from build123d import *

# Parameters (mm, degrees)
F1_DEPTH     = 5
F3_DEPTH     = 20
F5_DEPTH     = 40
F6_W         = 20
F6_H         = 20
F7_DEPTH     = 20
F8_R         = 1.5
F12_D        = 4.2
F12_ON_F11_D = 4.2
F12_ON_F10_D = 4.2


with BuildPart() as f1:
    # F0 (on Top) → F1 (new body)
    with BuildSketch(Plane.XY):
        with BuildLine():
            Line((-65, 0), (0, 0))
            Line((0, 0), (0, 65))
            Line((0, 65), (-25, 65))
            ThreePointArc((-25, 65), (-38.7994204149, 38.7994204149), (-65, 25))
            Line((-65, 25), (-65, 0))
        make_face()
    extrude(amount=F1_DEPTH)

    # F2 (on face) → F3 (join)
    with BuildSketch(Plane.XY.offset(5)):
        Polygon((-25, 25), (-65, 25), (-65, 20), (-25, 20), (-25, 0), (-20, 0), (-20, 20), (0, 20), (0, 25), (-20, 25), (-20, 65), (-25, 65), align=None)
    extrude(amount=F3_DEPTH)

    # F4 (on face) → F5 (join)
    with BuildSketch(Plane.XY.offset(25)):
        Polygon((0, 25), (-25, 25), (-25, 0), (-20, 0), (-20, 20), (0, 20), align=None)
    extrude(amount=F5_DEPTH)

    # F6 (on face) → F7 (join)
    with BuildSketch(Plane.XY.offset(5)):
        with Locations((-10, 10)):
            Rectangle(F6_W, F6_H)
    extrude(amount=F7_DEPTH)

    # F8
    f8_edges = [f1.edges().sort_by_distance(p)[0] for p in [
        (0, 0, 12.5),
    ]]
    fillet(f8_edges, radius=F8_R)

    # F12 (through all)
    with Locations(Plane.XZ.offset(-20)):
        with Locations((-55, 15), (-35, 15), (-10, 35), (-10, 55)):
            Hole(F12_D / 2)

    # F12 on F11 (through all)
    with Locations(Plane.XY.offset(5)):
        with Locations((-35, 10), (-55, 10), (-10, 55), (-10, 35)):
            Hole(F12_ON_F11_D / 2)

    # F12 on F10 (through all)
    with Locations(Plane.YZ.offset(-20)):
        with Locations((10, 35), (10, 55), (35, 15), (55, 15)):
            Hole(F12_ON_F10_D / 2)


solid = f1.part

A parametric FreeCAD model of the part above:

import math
import FreeCAD as App
import Part
import Sketcher
from FreeCAD import Vector


def edges_at(feature, points):
    """Names of the edges that pass closest to the given points."""
    edges = feature.Shape.Edges
    near = lambda p: min(range(len(edges)), key=lambda i: edges[i].distToShape(Part.Vertex(*p))[0])
    return sorted({f"Edge{near(p) + 1}" for p in points})

doc = App.newDocument("Part")
params = doc.addObject("Spreadsheet::Sheet", "Params")
for row, (alias, value) in enumerate([
    ("sketch1_radius", "50 mm"),
    ("sketch1_width", "65 mm"),
    ("sketch1_width2", "25 mm"),
    ("pad1_length", "5 mm"),
    ("sketch2_width", "40 mm"),
    ("sketch2_width2", "5 mm"),
    ("sketch2_width3", "20 mm"),
    ("pad2_length", "20 mm"),
    ("sketch3_width", "25 mm"),
    ("sketch3_width2", "5 mm"),
    ("pad3_length", "40 mm"),
    ("sketch4_width", "20 mm"),
    ("pad4_length", "20 mm"),
    ("fillet_radius", "1.5 mm"),
    ("sketch5_diameter", "4.2 mm"),
    ("hole_diameter", "4.2 mm"),
    ("sketch6_diameter", "4.2 mm"),
    ("hole2_diameter", "4.2 mm"),
    ("sketch7_diameter", "4.2 mm"),
    ("hole3_diameter", "4.2 mm"),
], start=1):
    params.set(f"A{row}", alias)
    params.set(f"B{row}", "=" + value)
    params.setAlias(f"B{row}", alias)

body = doc.addObject("PartDesign::Body", "Body")

# Sketch on XY plane
sketch1 = body.newObject("Sketcher::SketchObject", "Sketch")
sketch1.AttachmentSupport = (doc.getObject("XY_Plane"), [""])
sketch1.MapMode = "FlatFace"
sketch1.addGeometry(Part.LineSegment(Vector(-65, 0, 0), Vector(0, 0, 0)), False)
sketch1.addGeometry(Part.LineSegment(Vector(0, 0, 0), Vector(0, 65, 0)), False)
sketch1.addGeometry(Part.LineSegment(Vector(0, 65, 0), Vector(-25, 65, 0)), False)
sketch1.addGeometry(Part.ArcOfCircle(Part.Circle(Vector(-74, 74, 0), Vector(0, 0, 1), 50), math.radians(-79), math.radians(-11)), False)
sketch1.addGeometry(Part.LineSegment(Vector(-65, 25, 0), Vector(-65, 0, 0)), False)
sketch1.addConstraint(Sketcher.Constraint("Coincident", 0, 2, 1, 1))
sketch1.addConstraint(Sketcher.Constraint("Coincident", 1, 2, 2, 1))
sketch1.addConstraint(Sketcher.Constraint("Coincident", 2, 2, 3, 2))
sketch1.addConstraint(Sketcher.Constraint("Coincident", 3, 1, 4, 1))
sketch1.addConstraint(Sketcher.Constraint("Coincident", 4, 2, 0, 1))
sketch1.addConstraint(Sketcher.Constraint("Horizontal", 0))
sketch1.addConstraint(Sketcher.Constraint("Vertical", 1))
sketch1.addConstraint(Sketcher.Constraint("Horizontal", 2))
sketch1.addConstraint(Sketcher.Constraint("Vertical", 4))
sketch1.addConstraint(Sketcher.Constraint("Coincident", 0, 2, -1, 1))
sketch1.addConstraint(Sketcher.Constraint("Equal", 0, 1))
sketch1.addConstraint(Sketcher.Constraint("Equal", 2, 4))
sketch1.addConstraint(Sketcher.Constraint("Radius", 3, 50.0))
sketch1.addConstraint(Sketcher.Constraint("DistanceX", 0, 1, 0, 2, 65.0))
sketch1.addConstraint(Sketcher.Constraint("DistanceX", 2, 2, 2, 1, 25.0))
sketch1.setExpression("Constraints[12]", "Params.sketch1_radius")
sketch1.setExpression("Constraints[13]", "Params.sketch1_width")
sketch1.setExpression("Constraints[14]", "Params.sketch1_width2")
pad1 = body.newObject("PartDesign::Pad", "Pad")
pad1.Profile = sketch1
pad1.setExpression("Length", "Params.pad1_length")

# Sketch on XY plane
sketch2 = body.newObject("Sketcher::SketchObject", "Sketch001")
sketch2.AttachmentSupport = (doc.getObject("XY_Plane"), [""])
sketch2.MapMode = "FlatFace"
sketch2.AttachmentOffset = App.Placement(Vector(0, 0, 5), App.Rotation())
sketch2.addGeometry(Part.LineSegment(Vector(-25, 25, 0), Vector(-65, 25, 0)), False)
sketch2.addGeometry(Part.LineSegment(Vector(-65, 25, 0), Vector(-65, 20, 0)), False)
sketch2.addGeometry(Part.LineSegment(Vector(-65, 20, 0), Vector(-25, 20, 0)), False)
sketch2.addGeometry(Part.LineSegment(Vector(-25, 20, 0), Vector(-25, 0, 0)), False)
sketch2.addGeometry(Part.LineSegment(Vector(-25, 0, 0), Vector(-20, 0, 0)), False)
sketch2.addGeometry(Part.LineSegment(Vector(-20, 0, 0), Vector(-20, 20, 0)), False)
sketch2.addGeometry(Part.LineSegment(Vector(-20, 20, 0), Vector(0, 20, 0)), False)
sketch2.addGeometry(Part.LineSegment(Vector(0, 20, 0), Vector(0, 25, 0)), False)
sketch2.addGeometry(Part.LineSegment(Vector(0, 25, 0), Vector(-20, 25, 0)), False)
sketch2.addGeometry(Part.LineSegment(Vector(-20, 25, 0), Vector(-20, 65, 0)), False)
sketch2.addGeometry(Part.LineSegment(Vector(-20, 65, 0), Vector(-25, 65, 0)), False)
sketch2.addGeometry(Part.LineSegment(Vector(-25, 65, 0), Vector(-25, 25, 0)), False)
sketch2.addConstraint(Sketcher.Constraint("Coincident", 0, 2, 1, 1))
sketch2.addConstraint(Sketcher.Constraint("Coincident", 1, 2, 2, 1))
sketch2.addConstraint(Sketcher.Constraint("Coincident", 2, 2, 3, 1))
sketch2.addConstraint(Sketcher.Constraint("Coincident", 3, 2, 4, 1))
sketch2.addConstraint(Sketcher.Constraint("Coincident", 4, 2, 5, 1))
sketch2.addConstraint(Sketcher.Constraint("Coincident", 5, 2, 6, 1))
sketch2.addConstraint(Sketcher.Constraint("Coincident", 6, 2, 7, 1))
sketch2.addConstraint(Sketcher.Constraint("Coincident", 7, 2, 8, 1))
sketch2.addConstraint(Sketcher.Constraint("Coincident", 8, 2, 9, 1))
sketch2.addConstraint(Sketcher.Constraint("Coincident", 9, 2, 10, 1))
sketch2.addConstraint(Sketcher.Constraint("Coincident", 10, 2, 11, 1))
sketch2.addConstraint(Sketcher.Constraint("Coincident", 11, 2, 0, 1))
sketch2.addConstraint(Sketcher.Constraint("Horizontal", 0))
sketch2.addConstraint(Sketcher.Constraint("Vertical", 1))
sketch2.addConstraint(Sketcher.Constraint("Horizontal", 2))
sketch2.addConstraint(Sketcher.Constraint("Vertical", 3))
sketch2.addConstraint(Sketcher.Constraint("Horizontal", 4))
sketch2.addConstraint(Sketcher.Constraint("Vertical", 5))
sketch2.addConstraint(Sketcher.Constraint("Horizontal", 6))
sketch2.addConstraint(Sketcher.Constraint("Vertical", 7))
sketch2.addConstraint(Sketcher.Constraint("Horizontal", 8))
sketch2.addConstraint(Sketcher.Constraint("Vertical", 9))
sketch2.addConstraint(Sketcher.Constraint("Horizontal", 10))
sketch2.addConstraint(Sketcher.Constraint("Vertical", 11))
sketch2.addConstraint(Sketcher.Constraint("PointOnObject", 3, 2, -1))
sketch2.addConstraint(Sketcher.Constraint("PointOnObject", 6, 2, -2))
sketch2.addConstraint(Sketcher.Constraint("Horizontal", 2, 2, 5, 2))
sketch2.addConstraint(Sketcher.Constraint("Horizontal", 0, 2, 7, 2))
sketch2.addConstraint(Sketcher.Constraint("Vertical", 5, 2, 8, 2))
sketch2.addConstraint(Sketcher.Constraint("Vertical", 3, 2, 10, 2))
sketch2.addConstraint(Sketcher.Constraint("Equal", 10, 1))
sketch2.addConstraint(Sketcher.Constraint("Equal", 8, 3))
sketch2.addConstraint(Sketcher.Constraint("Equal", 2, 9))
sketch2.addConstraint(Sketcher.Constraint("DistanceX", 0, 2, 0, 1, 40.0))
sketch2.addConstraint(Sketcher.Constraint("DistanceX", 4, 1, 4, 2, 5.0))
sketch2.addConstraint(Sketcher.Constraint("DistanceX", 6, 1, 6, 2, 20.0))
sketch2.setExpression("Constraints[33]", "Params.sketch2_width")
sketch2.setExpression("Constraints[34]", "Params.sketch2_width2")
sketch2.setExpression("Constraints[35]", "Params.sketch2_width3")
pad2 = body.newObject("PartDesign::Pad", "Pad001")
pad2.Profile = sketch2
pad2.setExpression("Length", "Params.pad2_length")

# Sketch on XY plane
sketch3 = body.newObject("Sketcher::SketchObject", "Sketch002")
sketch3.AttachmentSupport = (doc.getObject("XY_Plane"), [""])
sketch3.MapMode = "FlatFace"
sketch3.AttachmentOffset = App.Placement(Vector(0, 0, 25), App.Rotation())
sketch3.addGeometry(Part.LineSegment(Vector(0, 25, 0), Vector(-25, 25, 0)), False)
sketch3.addGeometry(Part.LineSegment(Vector(-25, 25, 0), Vector(-25, 0, 0)), False)
sketch3.addGeometry(Part.LineSegment(Vector(-25, 0, 0), Vector(-20, 0, 0)), False)
sketch3.addGeometry(Part.LineSegment(Vector(-20, 0, 0), Vector(-20, 20, 0)), False)
sketch3.addGeometry(Part.LineSegment(Vector(-20, 20, 0), Vector(0, 20, 0)), False)
sketch3.addGeometry(Part.LineSegment(Vector(0, 20, 0), Vector(0, 25, 0)), False)
sketch3.addConstraint(Sketcher.Constraint("Coincident", 0, 2, 1, 1))
sketch3.addConstraint(Sketcher.Constraint("Coincident", 1, 2, 2, 1))
sketch3.addConstraint(Sketcher.Constraint("Coincident", 2, 2, 3, 1))
sketch3.addConstraint(Sketcher.Constraint("Coincident", 3, 2, 4, 1))
sketch3.addConstraint(Sketcher.Constraint("Coincident", 4, 2, 5, 1))
sketch3.addConstraint(Sketcher.Constraint("Coincident", 5, 2, 0, 1))
sketch3.addConstraint(Sketcher.Constraint("Horizontal", 0))
sketch3.addConstraint(Sketcher.Constraint("Vertical", 1))
sketch3.addConstraint(Sketcher.Constraint("Horizontal", 2))
sketch3.addConstraint(Sketcher.Constraint("Vertical", 3))
sketch3.addConstraint(Sketcher.Constraint("Horizontal", 4))
sketch3.addConstraint(Sketcher.Constraint("Vertical", 5))
sketch3.addConstraint(Sketcher.Constraint("PointOnObject", 1, 2, -1))
sketch3.addConstraint(Sketcher.Constraint("PointOnObject", 4, 2, -2))
sketch3.addConstraint(Sketcher.Constraint("Equal", 0, 1))
sketch3.addConstraint(Sketcher.Constraint("Equal", 4, 3))
sketch3.addConstraint(Sketcher.Constraint("DistanceX", 0, 2, 0, 1, 25.0))
sketch3.addConstraint(Sketcher.Constraint("DistanceX", 2, 1, 2, 2, 5.0))
sketch3.setExpression("Constraints[16]", "Params.sketch3_width")
sketch3.setExpression("Constraints[17]", "Params.sketch3_width2")
pad3 = body.newObject("PartDesign::Pad", "Pad002")
pad3.Profile = sketch3
pad3.setExpression("Length", "Params.pad3_length")

# Sketch on XY plane
sketch4 = body.newObject("Sketcher::SketchObject", "Sketch003")
sketch4.AttachmentSupport = (doc.getObject("XY_Plane"), [""])
sketch4.MapMode = "FlatFace"
sketch4.AttachmentOffset = App.Placement(Vector(0, 0, 5), App.Rotation())
sketch4.addGeometry(Part.LineSegment(Vector(-20, 20, 0), Vector(-20, 0, 0)), False)
sketch4.addGeometry(Part.LineSegment(Vector(-20, 0, 0), Vector(0, 0, 0)), False)
sketch4.addGeometry(Part.LineSegment(Vector(0, 0, 0), Vector(0, 20, 0)), False)
sketch4.addGeometry(Part.LineSegment(Vector(0, 20, 0), Vector(-20, 20, 0)), False)
sketch4.addConstraint(Sketcher.Constraint("Coincident", 0, 2, 1, 1))
sketch4.addConstraint(Sketcher.Constraint("Coincident", 1, 2, 2, 1))
sketch4.addConstraint(Sketcher.Constraint("Coincident", 2, 2, 3, 1))
sketch4.addConstraint(Sketcher.Constraint("Coincident", 3, 2, 0, 1))
sketch4.addConstraint(Sketcher.Constraint("Vertical", 0))
sketch4.addConstraint(Sketcher.Constraint("Horizontal", 1))
sketch4.addConstraint(Sketcher.Constraint("Vertical", 2))
sketch4.addConstraint(Sketcher.Constraint("Horizontal", 3))
sketch4.addConstraint(Sketcher.Constraint("Coincident", 1, 2, -1, 1))
sketch4.addConstraint(Sketcher.Constraint("Equal", 3, 0))
sketch4.addConstraint(Sketcher.Constraint("DistanceX", 1, 1, 1, 2, 20.0))
sketch4.setExpression("Constraints[10]", "Params.sketch4_width")
pad4 = body.newObject("PartDesign::Pad", "Pad003")
pad4.Profile = sketch4
pad4.setExpression("Length", "Params.pad4_length")
doc.recompute()

fillet = body.newObject("PartDesign::Fillet", "Fillet")
fillet.Base = (pad4, edges_at(pad4, [(0, 0, 12.5)]))
fillet.setExpression("Radius", "Params.fillet_radius")

# Sketch on XZ plane
sketch5 = body.newObject("Sketcher::SketchObject", "Sketch004")
sketch5.AttachmentSupport = (doc.getObject("XZ_Plane"), [""])
sketch5.MapMode = "FlatFace"
sketch5.AttachmentOffset = App.Placement(Vector(0, 0, -20), App.Rotation())
sketch5.addGeometry(Part.Circle(Vector(-55, 15, 0), Vector(0, 0, 1), 2.1), False)
sketch5.addGeometry(Part.Circle(Vector(-35, 15, 0), Vector(0, 0, 1), 2.1), False)
sketch5.addGeometry(Part.Circle(Vector(-10, 35, 0), Vector(0, 0, 1), 2.1), False)
sketch5.addGeometry(Part.Circle(Vector(-10, 55, 0), Vector(0, 0, 1), 2.1), False)
sketch5.addConstraint(Sketcher.Constraint("Equal", 0, 1))
sketch5.addConstraint(Sketcher.Constraint("Equal", 1, 2))
sketch5.addConstraint(Sketcher.Constraint("Equal", 2, 3))
sketch5.addConstraint(Sketcher.Constraint("Horizontal", 0, 3, 1, 3))
sketch5.addConstraint(Sketcher.Constraint("Vertical", 2, 3, 3, 3))
sketch5.addConstraint(Sketcher.Constraint("Diameter", 0, 4.2))
sketch5.addConstraint(Sketcher.Constraint("DistanceX", 0, 3, -1, 1, 55.0))
sketch5.addConstraint(Sketcher.Constraint("DistanceY", -1, 1, 0, 3, 15.0))
sketch5.addConstraint(Sketcher.Constraint("DistanceX", 1, 3, -1, 1, 35.0))
sketch5.addConstraint(Sketcher.Constraint("DistanceX", 2, 3, -1, 1, 10.0))
sketch5.addConstraint(Sketcher.Constraint("DistanceY", -1, 1, 2, 3, 35.0))
sketch5.addConstraint(Sketcher.Constraint("DistanceY", -1, 1, 3, 3, 55.0))
sketch5.setExpression("Constraints[5]", "Params.sketch5_diameter")
doc.recompute()
hole = body.newObject("PartDesign::Hole", "Hole")
hole.Profile = sketch5
hole.ThreadType = "None"
hole.setExpression("Diameter", "Params.hole_diameter")
hole.DepthType = "ThroughAll"

# Sketch on XY plane
sketch6 = body.newObject("Sketcher::SketchObject", "Sketch005")
sketch6.AttachmentSupport = (doc.getObject("XY_Plane"), [""])
sketch6.MapMode = "FlatFace"
sketch6.AttachmentOffset = App.Placement(Vector(0, 0, 5), App.Rotation())
sketch6.addGeometry(Part.Circle(Vector(-35, 10, 0), Vector(0, 0, 1), 2.1), False)
sketch6.addGeometry(Part.Circle(Vector(-55, 10, 0), Vector(0, 0, 1), 2.1), False)
sketch6.addGeometry(Part.Circle(Vector(-10, 55, 0), Vector(0, 0, 1), 2.1), False)
sketch6.addGeometry(Part.Circle(Vector(-10, 35, 0), Vector(0, 0, 1), 2.1), False)
sketch6.addConstraint(Sketcher.Constraint("Equal", 0, 1))
sketch6.addConstraint(Sketcher.Constraint("Equal", 1, 2))
sketch6.addConstraint(Sketcher.Constraint("Equal", 2, 3))
sketch6.addConstraint(Sketcher.Constraint("Horizontal", 0, 3, 1, 3))
sketch6.addConstraint(Sketcher.Constraint("Vertical", 2, 3, 3, 3))
sketch6.addConstraint(Sketcher.Constraint("Diameter", 0, 4.2))
sketch6.addConstraint(Sketcher.Constraint("DistanceX", 0, 3, -1, 1, 35.0))
sketch6.addConstraint(Sketcher.Constraint("DistanceY", -1, 1, 0, 3, 10.0))
sketch6.addConstraint(Sketcher.Constraint("DistanceX", 1, 3, -1, 1, 55.0))
sketch6.addConstraint(Sketcher.Constraint("DistanceX", 2, 3, -1, 1, 10.0))
sketch6.addConstraint(Sketcher.Constraint("DistanceY", -1, 1, 2, 3, 55.0))
sketch6.addConstraint(Sketcher.Constraint("DistanceY", -1, 1, 3, 3, 35.0))
sketch6.setExpression("Constraints[5]", "Params.sketch6_diameter")
doc.recompute()
hole2 = body.newObject("PartDesign::Hole", "Hole001")
hole2.Profile = sketch6
hole2.ThreadType = "None"
hole2.setExpression("Diameter", "Params.hole2_diameter")
hole2.DepthType = "ThroughAll"

# Sketch on YZ plane
sketch7 = body.newObject("Sketcher::SketchObject", "Sketch006")
sketch7.AttachmentSupport = (doc.getObject("YZ_Plane"), [""])
sketch7.MapMode = "FlatFace"
sketch7.AttachmentOffset = App.Placement(Vector(0, 0, -20), App.Rotation())
sketch7.addGeometry(Part.Circle(Vector(10, 35, 0), Vector(0, 0, 1), 2.1), False)
sketch7.addGeometry(Part.Circle(Vector(10, 55, 0), Vector(0, 0, 1), 2.1), False)
sketch7.addGeometry(Part.Circle(Vector(35, 15, 0), Vector(0, 0, 1), 2.1), False)
sketch7.addGeometry(Part.Circle(Vector(55, 15, 0), Vector(0, 0, 1), 2.1), False)
sketch7.addConstraint(Sketcher.Constraint("Equal", 0, 1))
sketch7.addConstraint(Sketcher.Constraint("Equal", 1, 2))
sketch7.addConstraint(Sketcher.Constraint("Equal", 2, 3))
sketch7.addConstraint(Sketcher.Constraint("Horizontal", 2, 3, 3, 3))
sketch7.addConstraint(Sketcher.Constraint("Vertical", 0, 3, 1, 3))
sketch7.addConstraint(Sketcher.Constraint("Diameter", 0, 4.2))
sketch7.addConstraint(Sketcher.Constraint("DistanceX", -1, 1, 0, 3, 10.0))
sketch7.addConstraint(Sketcher.Constraint("DistanceY", -1, 1, 0, 3, 35.0))
sketch7.addConstraint(Sketcher.Constraint("DistanceY", -1, 1, 1, 3, 55.0))
sketch7.addConstraint(Sketcher.Constraint("DistanceX", -1, 1, 2, 3, 35.0))
sketch7.addConstraint(Sketcher.Constraint("DistanceY", -1, 1, 2, 3, 15.0))
sketch7.addConstraint(Sketcher.Constraint("DistanceX", -1, 1, 3, 3, 55.0))
sketch7.setExpression("Constraints[5]", "Params.sketch7_diameter")
doc.recompute()
hole3 = body.newObject("PartDesign::Hole", "Hole002")
hole3.Profile = sketch7
hole3.ThreadType = "None"
hole3.setExpression("Diameter", "Params.hole3_diameter")
hole3.DepthType = "ThroughAll"

doc.recompute()
